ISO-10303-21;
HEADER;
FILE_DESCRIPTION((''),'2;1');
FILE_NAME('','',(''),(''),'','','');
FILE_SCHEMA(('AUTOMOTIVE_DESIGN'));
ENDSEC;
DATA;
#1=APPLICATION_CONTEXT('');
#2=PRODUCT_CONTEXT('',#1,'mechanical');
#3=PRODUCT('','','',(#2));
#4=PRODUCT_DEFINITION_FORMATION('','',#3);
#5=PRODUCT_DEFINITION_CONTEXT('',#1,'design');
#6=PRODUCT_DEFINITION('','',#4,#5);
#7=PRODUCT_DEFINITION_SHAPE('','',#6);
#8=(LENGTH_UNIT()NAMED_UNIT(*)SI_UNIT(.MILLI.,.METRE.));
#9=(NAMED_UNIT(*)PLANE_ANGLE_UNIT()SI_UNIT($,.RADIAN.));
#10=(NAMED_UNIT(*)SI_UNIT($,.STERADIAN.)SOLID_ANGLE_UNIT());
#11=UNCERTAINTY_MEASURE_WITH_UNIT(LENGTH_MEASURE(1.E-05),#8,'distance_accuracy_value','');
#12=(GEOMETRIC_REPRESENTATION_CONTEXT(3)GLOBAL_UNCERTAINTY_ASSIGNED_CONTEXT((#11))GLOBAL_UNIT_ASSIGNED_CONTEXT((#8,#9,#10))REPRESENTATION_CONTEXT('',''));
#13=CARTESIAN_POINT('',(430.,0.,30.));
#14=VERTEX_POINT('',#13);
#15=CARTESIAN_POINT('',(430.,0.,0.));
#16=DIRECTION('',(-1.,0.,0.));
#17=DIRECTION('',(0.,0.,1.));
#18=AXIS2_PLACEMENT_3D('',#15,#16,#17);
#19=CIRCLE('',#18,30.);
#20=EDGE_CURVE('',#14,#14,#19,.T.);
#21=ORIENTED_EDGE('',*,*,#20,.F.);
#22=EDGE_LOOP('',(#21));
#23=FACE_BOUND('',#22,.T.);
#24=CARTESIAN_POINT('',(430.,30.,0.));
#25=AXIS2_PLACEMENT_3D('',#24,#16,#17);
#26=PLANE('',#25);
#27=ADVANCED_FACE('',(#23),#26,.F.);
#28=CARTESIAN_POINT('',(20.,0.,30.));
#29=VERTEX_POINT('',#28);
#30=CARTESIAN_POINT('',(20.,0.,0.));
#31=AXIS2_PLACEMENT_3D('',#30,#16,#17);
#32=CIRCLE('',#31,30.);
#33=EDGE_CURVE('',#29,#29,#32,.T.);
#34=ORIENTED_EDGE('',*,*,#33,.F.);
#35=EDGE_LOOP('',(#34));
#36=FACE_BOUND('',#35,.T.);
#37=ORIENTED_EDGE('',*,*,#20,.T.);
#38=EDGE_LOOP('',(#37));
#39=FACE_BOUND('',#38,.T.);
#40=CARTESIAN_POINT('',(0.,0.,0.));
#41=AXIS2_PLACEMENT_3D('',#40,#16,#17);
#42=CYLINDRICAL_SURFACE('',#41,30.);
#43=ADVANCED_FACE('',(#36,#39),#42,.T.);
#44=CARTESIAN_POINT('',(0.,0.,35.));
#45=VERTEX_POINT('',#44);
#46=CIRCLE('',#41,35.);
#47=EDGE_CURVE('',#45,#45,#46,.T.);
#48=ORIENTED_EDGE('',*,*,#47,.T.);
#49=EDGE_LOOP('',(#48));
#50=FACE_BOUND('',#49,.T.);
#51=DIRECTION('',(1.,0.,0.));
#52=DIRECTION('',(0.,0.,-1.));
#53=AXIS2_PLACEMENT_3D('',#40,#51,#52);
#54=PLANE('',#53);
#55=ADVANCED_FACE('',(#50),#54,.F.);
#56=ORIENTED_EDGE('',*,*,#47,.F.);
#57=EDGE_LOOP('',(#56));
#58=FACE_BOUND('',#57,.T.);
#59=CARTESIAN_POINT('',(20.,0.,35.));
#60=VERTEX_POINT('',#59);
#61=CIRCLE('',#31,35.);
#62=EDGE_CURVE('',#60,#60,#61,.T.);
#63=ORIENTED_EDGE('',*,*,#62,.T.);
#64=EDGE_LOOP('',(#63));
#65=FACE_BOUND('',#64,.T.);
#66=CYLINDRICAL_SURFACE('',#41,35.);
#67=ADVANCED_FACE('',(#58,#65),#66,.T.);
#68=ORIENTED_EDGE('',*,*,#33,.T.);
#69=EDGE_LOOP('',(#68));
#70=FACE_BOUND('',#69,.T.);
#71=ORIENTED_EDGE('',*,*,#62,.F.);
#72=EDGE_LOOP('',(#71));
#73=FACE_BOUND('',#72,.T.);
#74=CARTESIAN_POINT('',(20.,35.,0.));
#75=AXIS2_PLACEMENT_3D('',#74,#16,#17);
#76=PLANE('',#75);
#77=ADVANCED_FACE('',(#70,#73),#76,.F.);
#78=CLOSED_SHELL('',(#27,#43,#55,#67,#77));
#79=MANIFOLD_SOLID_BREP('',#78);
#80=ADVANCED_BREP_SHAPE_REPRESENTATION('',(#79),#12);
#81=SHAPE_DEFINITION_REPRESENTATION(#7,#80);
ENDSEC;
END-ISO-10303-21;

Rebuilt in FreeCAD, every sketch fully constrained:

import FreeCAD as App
import Part
import Sketcher

doc = App.newDocument("Part")
body = doc.addObject("PartDesign::Body", "Body")

# Sketch on XY plane
sketch1 = body.newObject("Sketcher::SketchObject", "Sketch")
sketch1.AttachmentSupport = (doc.getObject("XY_Plane"), [""])
sketch1.MapMode = "FlatFace"
sketch1.addGeometry([
    Part.LineSegment(App.Vector(0, 35, 0), App.Vector(0, 0, 0)),  # 0
    Part.LineSegment(App.Vector(0, 0, 0), App.Vector(430, 0, 0)),  # 1
    Part.LineSegment(App.Vector(430, 0, 0), App.Vector(430, 30, 0)),  # 2
    Part.LineSegment(App.Vector(430, 30, 0), App.Vector(20, 30, 0)),  # 3
    Part.LineSegment(App.Vector(20, 30, 0), App.Vector(20, 35, 0)),  # 4
    Part.LineSegment(App.Vector(20, 35, 0), App.Vector(0, 35, 0)),  # 5
], False)
sketch1.addConstraint([
    Sketcher.Constraint("Coincident", 0, 2, 1, 1),
    Sketcher.Constraint("Coincident", 1, 2, 2, 1),
    Sketcher.Constraint("Coincident", 2, 2, 3, 1),
    Sketcher.Constraint("Coincident", 3, 2, 4, 1),
    Sketcher.Constraint("Coincident", 4, 2, 5, 1),
    Sketcher.Constraint("Coincident", 5, 2, 0, 1),
    Sketcher.Constraint("Vertical", 0),
    Sketcher.Constraint("Horizontal", 1),
    Sketcher.Constraint("Vertical", 2),
    Sketcher.Constraint("Horizontal", 3),
    Sketcher.Constraint("Vertical", 4),
    Sketcher.Constraint("Horizontal", 5),
    Sketcher.Constraint("Coincident", 0, 2, -1, 1),
    Sketcher.Constraint("DistanceX", 1, 1, 1, 2, 430.0),
    Sketcher.Constraint("DistanceX", 3, 2, 3, 1, 410.0),
    Sketcher.Constraint("DistanceY", 0, 2, 0, 1, 35.0),
    Sketcher.Constraint("DistanceY", 2, 1, 2, 2, 30.0),
])
revolution = body.newObject("PartDesign::Revolution", "Revolution")
revolution.Profile = sketch1
revolution.ReferenceAxis = (sketch1, ["H_Axis"])
revolution.Angle = 360

doc.recompute()
